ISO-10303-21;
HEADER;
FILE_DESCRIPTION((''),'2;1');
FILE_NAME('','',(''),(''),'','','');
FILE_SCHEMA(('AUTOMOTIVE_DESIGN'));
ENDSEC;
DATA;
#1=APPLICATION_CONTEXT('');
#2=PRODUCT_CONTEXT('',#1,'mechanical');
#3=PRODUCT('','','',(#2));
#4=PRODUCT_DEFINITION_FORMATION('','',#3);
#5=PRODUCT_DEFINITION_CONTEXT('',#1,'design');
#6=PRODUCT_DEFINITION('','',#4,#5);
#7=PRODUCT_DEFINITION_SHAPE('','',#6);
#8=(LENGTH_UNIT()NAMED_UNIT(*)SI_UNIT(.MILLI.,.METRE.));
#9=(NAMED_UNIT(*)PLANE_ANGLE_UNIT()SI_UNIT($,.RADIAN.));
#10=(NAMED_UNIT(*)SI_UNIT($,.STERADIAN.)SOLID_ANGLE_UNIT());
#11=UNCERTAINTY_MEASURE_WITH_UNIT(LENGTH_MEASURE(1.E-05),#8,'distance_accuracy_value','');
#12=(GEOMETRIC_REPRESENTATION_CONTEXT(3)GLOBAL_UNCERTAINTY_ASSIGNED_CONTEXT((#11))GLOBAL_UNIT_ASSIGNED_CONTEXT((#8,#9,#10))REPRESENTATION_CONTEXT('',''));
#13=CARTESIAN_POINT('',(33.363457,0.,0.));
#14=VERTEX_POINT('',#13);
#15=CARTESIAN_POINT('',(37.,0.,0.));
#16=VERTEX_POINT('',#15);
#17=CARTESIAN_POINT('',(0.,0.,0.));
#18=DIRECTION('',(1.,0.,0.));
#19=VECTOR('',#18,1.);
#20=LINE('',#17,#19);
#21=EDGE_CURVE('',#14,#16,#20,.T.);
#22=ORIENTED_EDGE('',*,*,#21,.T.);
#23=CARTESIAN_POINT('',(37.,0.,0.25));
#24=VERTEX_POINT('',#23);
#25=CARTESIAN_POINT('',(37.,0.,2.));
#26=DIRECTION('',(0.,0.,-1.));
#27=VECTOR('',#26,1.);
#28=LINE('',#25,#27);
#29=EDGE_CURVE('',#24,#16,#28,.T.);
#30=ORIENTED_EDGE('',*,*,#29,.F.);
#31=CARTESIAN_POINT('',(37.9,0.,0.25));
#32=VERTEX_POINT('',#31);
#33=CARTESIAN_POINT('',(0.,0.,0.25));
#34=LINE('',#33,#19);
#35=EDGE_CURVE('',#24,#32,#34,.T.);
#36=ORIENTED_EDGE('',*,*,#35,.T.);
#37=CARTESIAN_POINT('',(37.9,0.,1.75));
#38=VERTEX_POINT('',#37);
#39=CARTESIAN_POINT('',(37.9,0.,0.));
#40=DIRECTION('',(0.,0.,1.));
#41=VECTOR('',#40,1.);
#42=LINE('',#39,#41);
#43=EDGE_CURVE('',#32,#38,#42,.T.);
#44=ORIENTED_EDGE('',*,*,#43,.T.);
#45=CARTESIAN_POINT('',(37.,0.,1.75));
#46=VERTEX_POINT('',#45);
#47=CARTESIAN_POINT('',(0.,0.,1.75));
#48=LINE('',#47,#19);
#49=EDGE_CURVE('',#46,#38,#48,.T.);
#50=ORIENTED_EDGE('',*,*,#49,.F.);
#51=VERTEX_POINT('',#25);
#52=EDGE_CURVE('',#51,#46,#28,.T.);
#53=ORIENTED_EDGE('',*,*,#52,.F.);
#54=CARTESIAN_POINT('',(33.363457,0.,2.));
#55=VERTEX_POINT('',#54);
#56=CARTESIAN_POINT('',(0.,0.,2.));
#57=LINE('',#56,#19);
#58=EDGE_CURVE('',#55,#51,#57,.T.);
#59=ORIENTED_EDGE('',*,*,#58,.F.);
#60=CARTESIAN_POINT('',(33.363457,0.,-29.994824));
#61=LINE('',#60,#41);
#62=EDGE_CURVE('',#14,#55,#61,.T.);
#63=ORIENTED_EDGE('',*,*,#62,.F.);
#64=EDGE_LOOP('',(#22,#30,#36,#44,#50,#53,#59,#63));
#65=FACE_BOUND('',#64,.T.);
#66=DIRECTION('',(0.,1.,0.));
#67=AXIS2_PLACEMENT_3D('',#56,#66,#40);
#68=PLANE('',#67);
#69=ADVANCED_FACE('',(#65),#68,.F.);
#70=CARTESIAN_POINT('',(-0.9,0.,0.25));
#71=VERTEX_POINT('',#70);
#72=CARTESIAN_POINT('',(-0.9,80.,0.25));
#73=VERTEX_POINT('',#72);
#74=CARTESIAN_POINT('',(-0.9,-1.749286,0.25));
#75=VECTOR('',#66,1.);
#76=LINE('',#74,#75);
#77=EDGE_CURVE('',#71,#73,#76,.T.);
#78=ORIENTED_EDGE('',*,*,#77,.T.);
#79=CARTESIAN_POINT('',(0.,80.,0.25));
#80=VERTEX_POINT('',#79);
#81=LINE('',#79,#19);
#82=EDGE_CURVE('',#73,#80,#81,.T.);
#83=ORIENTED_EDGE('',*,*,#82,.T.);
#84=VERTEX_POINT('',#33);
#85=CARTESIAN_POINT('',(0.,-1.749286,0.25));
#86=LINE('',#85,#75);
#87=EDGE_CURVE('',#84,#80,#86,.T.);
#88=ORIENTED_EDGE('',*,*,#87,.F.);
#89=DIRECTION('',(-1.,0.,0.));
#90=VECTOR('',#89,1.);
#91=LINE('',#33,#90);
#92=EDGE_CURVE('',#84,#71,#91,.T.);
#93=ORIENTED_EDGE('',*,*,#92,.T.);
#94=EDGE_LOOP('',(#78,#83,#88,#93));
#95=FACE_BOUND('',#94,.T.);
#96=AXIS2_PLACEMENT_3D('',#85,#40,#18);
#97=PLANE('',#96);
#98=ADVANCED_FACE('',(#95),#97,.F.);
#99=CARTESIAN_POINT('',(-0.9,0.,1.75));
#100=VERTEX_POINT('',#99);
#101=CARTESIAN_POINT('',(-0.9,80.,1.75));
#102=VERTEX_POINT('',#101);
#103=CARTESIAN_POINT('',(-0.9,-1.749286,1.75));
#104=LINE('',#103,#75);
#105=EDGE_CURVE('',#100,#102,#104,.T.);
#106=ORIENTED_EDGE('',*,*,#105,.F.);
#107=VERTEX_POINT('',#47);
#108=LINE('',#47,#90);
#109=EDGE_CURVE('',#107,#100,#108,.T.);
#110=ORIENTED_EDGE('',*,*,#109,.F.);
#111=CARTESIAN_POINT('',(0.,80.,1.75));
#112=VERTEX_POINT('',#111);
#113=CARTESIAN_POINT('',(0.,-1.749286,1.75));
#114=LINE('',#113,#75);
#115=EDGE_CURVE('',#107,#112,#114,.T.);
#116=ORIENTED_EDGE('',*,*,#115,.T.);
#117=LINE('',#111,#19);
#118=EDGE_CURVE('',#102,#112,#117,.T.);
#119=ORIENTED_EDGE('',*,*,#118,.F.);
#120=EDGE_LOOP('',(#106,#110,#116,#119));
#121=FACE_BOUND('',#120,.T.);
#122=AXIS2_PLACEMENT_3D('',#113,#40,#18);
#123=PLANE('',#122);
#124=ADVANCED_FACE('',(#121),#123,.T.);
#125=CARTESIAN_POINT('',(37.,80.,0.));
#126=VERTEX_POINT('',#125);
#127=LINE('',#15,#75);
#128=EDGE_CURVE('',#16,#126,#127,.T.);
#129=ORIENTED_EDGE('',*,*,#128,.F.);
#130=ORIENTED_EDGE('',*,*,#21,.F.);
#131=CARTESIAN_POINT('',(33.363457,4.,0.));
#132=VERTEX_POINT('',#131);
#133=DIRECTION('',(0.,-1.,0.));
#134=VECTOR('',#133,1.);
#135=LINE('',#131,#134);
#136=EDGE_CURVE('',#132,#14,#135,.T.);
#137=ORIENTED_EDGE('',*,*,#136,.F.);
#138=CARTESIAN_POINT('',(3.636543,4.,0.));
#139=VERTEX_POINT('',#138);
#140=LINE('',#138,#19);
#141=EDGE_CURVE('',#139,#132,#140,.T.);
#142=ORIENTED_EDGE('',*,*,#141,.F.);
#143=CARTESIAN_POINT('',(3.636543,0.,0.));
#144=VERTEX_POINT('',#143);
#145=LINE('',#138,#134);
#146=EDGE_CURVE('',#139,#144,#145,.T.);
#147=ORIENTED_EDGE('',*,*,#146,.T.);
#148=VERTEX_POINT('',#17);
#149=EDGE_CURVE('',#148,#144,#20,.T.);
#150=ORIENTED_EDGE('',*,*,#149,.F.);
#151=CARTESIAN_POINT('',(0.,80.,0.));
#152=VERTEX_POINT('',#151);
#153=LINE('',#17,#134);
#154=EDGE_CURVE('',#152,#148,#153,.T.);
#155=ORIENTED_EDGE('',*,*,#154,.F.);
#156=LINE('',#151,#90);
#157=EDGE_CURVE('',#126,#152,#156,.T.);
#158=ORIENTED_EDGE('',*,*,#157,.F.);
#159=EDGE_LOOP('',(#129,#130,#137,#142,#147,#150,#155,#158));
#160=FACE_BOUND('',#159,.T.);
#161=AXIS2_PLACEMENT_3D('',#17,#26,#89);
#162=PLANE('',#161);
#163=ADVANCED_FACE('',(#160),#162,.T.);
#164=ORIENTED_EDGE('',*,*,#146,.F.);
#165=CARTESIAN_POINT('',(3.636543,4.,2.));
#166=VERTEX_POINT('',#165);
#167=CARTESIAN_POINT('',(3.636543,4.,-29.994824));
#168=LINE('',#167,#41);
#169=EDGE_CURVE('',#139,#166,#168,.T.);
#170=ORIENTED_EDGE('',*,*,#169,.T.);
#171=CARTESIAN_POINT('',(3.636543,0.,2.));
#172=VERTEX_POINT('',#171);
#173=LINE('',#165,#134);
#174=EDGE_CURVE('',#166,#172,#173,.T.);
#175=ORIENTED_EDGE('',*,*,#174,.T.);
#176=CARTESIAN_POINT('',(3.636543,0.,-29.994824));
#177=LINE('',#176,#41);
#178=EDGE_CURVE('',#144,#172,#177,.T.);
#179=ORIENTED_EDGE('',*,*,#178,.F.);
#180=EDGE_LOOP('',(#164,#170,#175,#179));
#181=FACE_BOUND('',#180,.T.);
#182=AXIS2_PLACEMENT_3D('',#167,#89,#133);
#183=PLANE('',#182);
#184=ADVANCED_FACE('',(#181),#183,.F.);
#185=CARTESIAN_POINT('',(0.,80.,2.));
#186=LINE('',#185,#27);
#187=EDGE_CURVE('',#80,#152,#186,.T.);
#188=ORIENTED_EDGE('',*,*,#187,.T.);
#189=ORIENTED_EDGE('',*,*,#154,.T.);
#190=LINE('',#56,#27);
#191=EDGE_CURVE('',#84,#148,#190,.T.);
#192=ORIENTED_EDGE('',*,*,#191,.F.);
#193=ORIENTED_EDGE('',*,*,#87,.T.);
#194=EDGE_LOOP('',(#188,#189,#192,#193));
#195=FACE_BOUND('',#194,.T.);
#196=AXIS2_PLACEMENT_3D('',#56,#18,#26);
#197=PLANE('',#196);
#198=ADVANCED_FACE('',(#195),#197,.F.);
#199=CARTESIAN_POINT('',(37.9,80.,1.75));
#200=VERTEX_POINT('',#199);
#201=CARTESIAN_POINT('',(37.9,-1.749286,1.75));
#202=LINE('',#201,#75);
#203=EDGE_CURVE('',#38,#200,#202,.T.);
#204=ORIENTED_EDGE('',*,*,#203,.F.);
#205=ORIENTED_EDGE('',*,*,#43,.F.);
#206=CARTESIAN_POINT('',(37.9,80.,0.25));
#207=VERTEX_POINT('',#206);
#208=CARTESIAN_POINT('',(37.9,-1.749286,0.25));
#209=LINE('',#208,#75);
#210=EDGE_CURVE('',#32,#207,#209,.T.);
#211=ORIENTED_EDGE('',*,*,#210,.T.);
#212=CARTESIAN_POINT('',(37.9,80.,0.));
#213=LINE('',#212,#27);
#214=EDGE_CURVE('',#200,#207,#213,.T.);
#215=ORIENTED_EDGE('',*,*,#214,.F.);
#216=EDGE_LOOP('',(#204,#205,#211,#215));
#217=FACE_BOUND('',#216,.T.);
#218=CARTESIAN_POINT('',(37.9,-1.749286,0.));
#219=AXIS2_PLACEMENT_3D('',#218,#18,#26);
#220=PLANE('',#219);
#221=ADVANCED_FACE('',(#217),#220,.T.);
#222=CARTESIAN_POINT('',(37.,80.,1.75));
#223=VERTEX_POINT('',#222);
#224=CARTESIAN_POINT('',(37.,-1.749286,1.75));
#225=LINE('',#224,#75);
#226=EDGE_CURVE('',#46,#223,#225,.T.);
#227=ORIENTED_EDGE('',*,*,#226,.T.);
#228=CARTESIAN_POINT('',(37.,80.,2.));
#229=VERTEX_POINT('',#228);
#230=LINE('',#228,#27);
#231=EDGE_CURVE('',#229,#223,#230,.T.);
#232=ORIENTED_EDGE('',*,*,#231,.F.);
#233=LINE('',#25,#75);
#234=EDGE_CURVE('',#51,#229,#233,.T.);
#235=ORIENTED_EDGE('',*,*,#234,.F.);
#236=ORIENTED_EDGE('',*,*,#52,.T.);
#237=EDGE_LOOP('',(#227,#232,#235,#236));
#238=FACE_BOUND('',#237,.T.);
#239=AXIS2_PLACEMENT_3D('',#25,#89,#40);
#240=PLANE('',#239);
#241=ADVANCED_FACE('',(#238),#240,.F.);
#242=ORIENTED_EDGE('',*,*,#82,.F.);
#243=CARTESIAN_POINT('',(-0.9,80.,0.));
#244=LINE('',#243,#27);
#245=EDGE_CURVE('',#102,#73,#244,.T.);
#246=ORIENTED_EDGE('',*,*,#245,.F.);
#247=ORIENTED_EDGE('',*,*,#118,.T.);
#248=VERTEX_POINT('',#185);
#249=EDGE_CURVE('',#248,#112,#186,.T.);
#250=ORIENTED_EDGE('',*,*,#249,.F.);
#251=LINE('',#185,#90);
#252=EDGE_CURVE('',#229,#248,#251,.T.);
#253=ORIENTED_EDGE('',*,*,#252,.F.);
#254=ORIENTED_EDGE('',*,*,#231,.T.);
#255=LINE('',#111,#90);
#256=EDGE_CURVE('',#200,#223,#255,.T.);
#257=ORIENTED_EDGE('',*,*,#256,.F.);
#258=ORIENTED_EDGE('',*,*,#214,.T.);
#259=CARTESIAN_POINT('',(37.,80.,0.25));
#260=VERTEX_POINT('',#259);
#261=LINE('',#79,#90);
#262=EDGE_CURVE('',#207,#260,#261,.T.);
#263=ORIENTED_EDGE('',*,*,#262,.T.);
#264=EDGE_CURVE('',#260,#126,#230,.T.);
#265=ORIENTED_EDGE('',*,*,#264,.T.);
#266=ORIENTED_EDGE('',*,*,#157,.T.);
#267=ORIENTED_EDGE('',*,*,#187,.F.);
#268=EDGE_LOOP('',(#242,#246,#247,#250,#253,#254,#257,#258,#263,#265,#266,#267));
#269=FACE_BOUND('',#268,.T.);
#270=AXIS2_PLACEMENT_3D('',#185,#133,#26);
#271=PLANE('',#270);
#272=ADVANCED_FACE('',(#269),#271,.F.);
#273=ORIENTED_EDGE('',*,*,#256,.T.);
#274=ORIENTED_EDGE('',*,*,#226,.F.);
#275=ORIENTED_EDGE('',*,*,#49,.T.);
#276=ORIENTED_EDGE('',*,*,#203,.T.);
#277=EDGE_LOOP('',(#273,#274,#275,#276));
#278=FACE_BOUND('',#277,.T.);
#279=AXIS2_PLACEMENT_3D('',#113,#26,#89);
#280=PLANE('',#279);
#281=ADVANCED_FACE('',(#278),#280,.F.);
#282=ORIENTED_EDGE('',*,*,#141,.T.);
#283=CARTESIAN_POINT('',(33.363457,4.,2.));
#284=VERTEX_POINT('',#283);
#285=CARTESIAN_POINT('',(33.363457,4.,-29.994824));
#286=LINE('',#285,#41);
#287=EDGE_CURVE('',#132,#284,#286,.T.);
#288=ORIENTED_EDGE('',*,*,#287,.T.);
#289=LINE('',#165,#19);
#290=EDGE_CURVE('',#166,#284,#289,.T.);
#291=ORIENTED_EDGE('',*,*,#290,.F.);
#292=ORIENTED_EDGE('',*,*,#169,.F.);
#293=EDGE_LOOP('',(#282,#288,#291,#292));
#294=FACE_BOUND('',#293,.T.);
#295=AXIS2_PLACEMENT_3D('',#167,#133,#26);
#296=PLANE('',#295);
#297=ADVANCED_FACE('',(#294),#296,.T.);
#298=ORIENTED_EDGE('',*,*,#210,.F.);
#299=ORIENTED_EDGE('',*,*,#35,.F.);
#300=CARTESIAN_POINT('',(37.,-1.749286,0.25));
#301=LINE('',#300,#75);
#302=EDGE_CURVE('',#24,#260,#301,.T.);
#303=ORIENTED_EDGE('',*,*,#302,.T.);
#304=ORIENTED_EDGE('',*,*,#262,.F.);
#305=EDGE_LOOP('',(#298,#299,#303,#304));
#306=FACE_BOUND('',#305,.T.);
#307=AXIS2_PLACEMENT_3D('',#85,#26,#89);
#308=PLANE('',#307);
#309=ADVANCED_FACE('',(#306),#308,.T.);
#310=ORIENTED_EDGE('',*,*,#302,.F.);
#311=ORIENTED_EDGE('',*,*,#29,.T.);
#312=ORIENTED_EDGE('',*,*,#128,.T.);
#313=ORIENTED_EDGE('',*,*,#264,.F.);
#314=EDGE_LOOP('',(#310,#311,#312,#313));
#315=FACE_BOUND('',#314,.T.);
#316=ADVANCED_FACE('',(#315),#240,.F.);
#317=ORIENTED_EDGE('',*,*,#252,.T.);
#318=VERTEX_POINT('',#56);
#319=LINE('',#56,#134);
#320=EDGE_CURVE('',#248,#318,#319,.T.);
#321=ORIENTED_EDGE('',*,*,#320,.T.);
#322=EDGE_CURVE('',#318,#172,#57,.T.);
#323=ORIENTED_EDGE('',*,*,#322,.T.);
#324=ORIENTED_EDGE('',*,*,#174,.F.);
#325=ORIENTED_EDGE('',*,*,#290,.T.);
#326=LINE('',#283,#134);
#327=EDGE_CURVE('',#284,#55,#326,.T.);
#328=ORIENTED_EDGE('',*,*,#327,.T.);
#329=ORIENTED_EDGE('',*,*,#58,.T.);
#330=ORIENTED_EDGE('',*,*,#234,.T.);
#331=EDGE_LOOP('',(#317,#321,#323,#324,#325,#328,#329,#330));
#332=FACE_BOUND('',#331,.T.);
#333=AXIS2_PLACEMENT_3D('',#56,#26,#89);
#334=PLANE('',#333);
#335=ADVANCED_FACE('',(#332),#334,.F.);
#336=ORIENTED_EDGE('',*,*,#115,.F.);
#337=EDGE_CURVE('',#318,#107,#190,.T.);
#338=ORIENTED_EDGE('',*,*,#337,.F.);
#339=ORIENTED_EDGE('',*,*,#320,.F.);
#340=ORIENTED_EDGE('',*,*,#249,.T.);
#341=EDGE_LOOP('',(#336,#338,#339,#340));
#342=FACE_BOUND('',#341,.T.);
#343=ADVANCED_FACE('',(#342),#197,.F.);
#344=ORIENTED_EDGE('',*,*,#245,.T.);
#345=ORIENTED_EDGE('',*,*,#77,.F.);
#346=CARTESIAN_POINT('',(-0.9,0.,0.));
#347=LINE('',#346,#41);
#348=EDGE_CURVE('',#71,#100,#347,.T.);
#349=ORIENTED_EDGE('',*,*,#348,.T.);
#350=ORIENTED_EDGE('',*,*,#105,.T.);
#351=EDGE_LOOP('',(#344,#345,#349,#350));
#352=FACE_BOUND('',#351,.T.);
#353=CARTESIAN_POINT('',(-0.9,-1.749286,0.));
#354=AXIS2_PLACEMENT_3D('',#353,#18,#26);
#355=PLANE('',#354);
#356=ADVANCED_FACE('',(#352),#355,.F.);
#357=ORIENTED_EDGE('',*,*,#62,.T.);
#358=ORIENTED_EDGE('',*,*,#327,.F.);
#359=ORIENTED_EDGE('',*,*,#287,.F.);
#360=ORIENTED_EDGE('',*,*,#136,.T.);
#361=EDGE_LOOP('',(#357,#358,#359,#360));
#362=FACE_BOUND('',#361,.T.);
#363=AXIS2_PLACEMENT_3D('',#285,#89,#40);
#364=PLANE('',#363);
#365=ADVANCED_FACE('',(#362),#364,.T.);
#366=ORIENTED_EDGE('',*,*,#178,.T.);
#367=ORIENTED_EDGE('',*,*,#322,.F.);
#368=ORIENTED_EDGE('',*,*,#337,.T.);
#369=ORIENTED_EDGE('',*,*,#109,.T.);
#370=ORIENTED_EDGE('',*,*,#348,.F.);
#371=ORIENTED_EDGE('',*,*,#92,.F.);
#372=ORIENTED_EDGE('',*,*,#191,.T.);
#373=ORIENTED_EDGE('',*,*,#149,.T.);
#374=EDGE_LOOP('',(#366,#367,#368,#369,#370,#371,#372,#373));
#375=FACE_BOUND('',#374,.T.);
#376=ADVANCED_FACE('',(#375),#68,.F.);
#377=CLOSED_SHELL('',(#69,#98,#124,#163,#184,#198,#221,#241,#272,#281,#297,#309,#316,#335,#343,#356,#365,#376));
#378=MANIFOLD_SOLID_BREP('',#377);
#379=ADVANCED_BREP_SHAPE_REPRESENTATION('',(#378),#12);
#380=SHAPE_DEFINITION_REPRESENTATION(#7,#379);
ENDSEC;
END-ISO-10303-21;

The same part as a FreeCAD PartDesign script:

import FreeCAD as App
import Part
import Sketcher


def add_polygon(sketch, points):
    """Adds a closed chain of lines whose ends are joined by coincident constraints."""
    first, n = sketch.GeometryCount, len(points)
    for a, b in zip(points, points[1:] + points[:1]):
        sketch.addGeometry(Part.LineSegment(App.Vector(*a, 0), App.Vector(*b, 0)), False)
    for i in range(n):
        sketch.addConstraint(Sketcher.Constraint("Coincident", first + i, 2, first + (i + 1) % n, 1))

doc = App.newDocument("Part")
body = doc.addObject("PartDesign::Body", "Body")

sketch1 = doc.addObject("Sketcher::SketchObject", "Sketch")
body.addObject(sketch1)
sketch1.AttachmentSupport = (doc.XY_Plane, [""])
sketch1.MapMode = "FlatFace"
add_polygon(sketch1, [(0, 80), (0, 0), (37, 0), (37, 80)])
sketch1.addConstraint([
    Sketcher.Constraint("Vertical", 0),
    Sketcher.Constraint("Horizontal", 1),
    Sketcher.Constraint("Vertical", 2),
    Sketcher.Constraint("Horizontal", 3),
    Sketcher.Constraint("Coincident", 0, 2, -1, 1),
    Sketcher.Constraint("DistanceX", 1, 1, 1, 2, 37.0),
    Sketcher.Constraint("DistanceY", 0, 2, 0, 1, 80.0),
])
pad1 = doc.addObject("PartDesign::Pad", "Pad")
body.addObject(pad1)
pad1.Profile = sketch1
pad1.Length = 2

sketch2 = doc.addObject("Sketcher::SketchObject", "Sketch001")
body.addObject(sketch2)
sketch2.AttachmentSupport = (doc.XZ_Plane, [""])
sketch2.MapMode = "FlatFace"
sketch2.AttachmentOffset = App.Placement(App.Vector(0, 0, -80), App.Rotation())
add_polygon(sketch2, [(37, 0.2), (37, 1.8), (37.9, 1.8), (37.9, 0.2)])
add_polygon(sketch2, [(-0.9, 0.2), (-0.9, 1.8), (0, 1.8), (0, 0.2)])
sketch2.addConstraint([
    Sketcher.Constraint("Vertical", 0),
    Sketcher.Constraint("Horizontal", 1),
    Sketcher.Constraint("Vertical", 2),
    Sketcher.Constraint("Horizontal", 3),
    Sketcher.Constraint("Vertical", 4),
    Sketcher.Constraint("Horizontal", 5),
    Sketcher.Constraint("Vertical", 6),
    Sketcher.Constraint("Horizontal", 7),
    Sketcher.Constraint("PointOnObject", 5, 2, -2),
    Sketcher.Constraint("Horizontal", 1, 2, 4, 2),
    Sketcher.Constraint("Horizontal", 3, 2, 6, 2),
    Sketcher.Constraint("Equal", 3, 5),
    Sketcher.Constraint("DistanceX", 1, 1, 1, 2, 0.9),
    Sketcher.Constraint("DistanceY", 0, 1, 0, 2, 1.5),
    Sketcher.Constraint("DistanceX", -1, 1, 0, 2, 37.0),
    Sketcher.Constraint("DistanceY", -1, 1, 0, 2, 1.75),
])
pad2 = doc.addObject("PartDesign::Pad", "Pad001")
body.addObject(pad2)
pad2.Profile = sketch2
pad2.Length = 80

sketch3 = doc.addObject("Sketcher::SketchObject", "Sketch002")
body.addObject(sketch3)
sketch3.AttachmentSupport = (doc.XY_Plane, [""])
sketch3.MapMode = "FlatFace"
sketch3.AttachmentOffset = App.Placement(App.Vector(0, 0, 2), App.Rotation())
add_polygon(sketch3, [(3.6, 4), (3.6, 0), (33.4, 0), (33.4, 4)])
sketch3.addConstraint([
    Sketcher.Constraint("Vertical", 0),
    Sketcher.Constraint("Horizontal", 1),
    Sketcher.Constraint("Vertical", 2),
    Sketcher.Constraint("Horizontal", 3),
    Sketcher.Constraint("PointOnObject", 0, 2, -1),
    Sketcher.Constraint("DistanceY", 0, 2, 0, 1, 4.0),
    Sketcher.Constraint("DistanceX", 1, 1, 1, 2, 29.726914),
    Sketcher.Constraint("DistanceX", -1, 1, 0, 2, 3.636543),
])
pocket1 = doc.addObject("PartDesign::Pocket", "Pocket")
body.addObject(pocket1)
pocket1.Profile = sketch3
pocket1.Length = 2

doc.recompute()
